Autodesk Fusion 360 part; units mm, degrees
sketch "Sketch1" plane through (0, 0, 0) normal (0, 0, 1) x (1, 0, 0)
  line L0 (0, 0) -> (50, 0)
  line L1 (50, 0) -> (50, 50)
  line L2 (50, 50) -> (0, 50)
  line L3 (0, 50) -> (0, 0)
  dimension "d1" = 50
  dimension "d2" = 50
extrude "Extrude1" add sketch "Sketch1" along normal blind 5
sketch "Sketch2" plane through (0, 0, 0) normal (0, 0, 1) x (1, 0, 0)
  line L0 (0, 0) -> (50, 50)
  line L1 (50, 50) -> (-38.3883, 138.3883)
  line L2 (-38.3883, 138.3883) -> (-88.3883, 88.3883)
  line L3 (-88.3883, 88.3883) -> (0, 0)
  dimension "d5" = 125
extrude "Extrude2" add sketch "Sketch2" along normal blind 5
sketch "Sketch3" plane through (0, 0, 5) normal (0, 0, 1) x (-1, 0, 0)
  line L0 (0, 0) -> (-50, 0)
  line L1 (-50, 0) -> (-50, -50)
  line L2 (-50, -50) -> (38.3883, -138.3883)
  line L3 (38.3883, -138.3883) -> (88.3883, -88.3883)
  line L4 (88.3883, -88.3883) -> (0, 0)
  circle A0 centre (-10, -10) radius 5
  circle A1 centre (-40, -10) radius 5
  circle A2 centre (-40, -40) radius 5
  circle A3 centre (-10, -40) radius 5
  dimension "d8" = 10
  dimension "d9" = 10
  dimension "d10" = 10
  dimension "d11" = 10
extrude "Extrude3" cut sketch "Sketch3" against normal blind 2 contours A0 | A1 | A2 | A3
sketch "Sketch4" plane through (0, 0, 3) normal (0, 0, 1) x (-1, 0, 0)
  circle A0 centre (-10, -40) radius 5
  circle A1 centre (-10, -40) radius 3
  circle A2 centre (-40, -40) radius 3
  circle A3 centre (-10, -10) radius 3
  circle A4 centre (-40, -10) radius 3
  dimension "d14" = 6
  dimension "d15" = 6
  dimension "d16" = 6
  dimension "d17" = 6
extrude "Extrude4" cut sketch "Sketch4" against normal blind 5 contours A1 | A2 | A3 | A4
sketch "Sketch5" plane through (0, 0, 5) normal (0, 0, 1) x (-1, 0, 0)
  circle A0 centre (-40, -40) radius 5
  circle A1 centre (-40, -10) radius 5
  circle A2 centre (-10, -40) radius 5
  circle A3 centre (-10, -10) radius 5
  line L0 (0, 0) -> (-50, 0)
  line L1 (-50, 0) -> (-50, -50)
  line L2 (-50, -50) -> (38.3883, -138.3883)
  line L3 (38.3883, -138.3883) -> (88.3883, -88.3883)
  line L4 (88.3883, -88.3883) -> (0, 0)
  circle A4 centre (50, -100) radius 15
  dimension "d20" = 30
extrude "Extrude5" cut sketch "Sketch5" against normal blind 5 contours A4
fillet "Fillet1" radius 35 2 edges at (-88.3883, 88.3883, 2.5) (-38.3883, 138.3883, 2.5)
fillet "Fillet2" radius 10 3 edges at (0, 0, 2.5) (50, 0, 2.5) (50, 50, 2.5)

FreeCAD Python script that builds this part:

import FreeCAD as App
import Part
import Sketcher

V = App.Vector
Q = App.Units.Quantity


def edges_at(feature, points):
    """Names of the edges that pass closest to the given points."""
    edges = feature.Shape.Edges
    near = lambda p: min(range(len(edges)), key=lambda i: edges[i].distToShape(Part.Vertex(*p))[0])
    return sorted({f"Edge{near(p) + 1}" for p in points})


def add_polygon(sketch, points):
    """Adds a closed chain of lines whose ends are joined by coincident constraints."""
    first, n = sketch.GeometryCount, len(points)
    for a, b in zip(points, points[1:] + points[:1]):
        sketch.addGeometry(Part.LineSegment(App.Vector(*a, 0), App.Vector(*b, 0)), False)
    for i in range(n):
        sketch.addConstraint(Sketcher.Constraint("Coincident", first + i, 2, first + (i + 1) % n, 1))

doc = App.newDocument("Part")
body = doc.addObject("PartDesign::Body", "Body")

# Sketch on XY plane
sketch1 = body.newObject("Sketcher::SketchObject", "Sketch")
sketch1.AttachmentSupport = (doc.getObject("XY_Plane"), [""])
sketch1.MapMode = "FlatFace"
add_polygon(sketch1, [(0, 50), (0, 0), (50, 0), (50, 50)])  # lines 0-3
sketch1.addConstraint([
    Sketcher.Constraint("Vertical", 0),
    Sketcher.Constraint("Horizontal", 1),
    Sketcher.Constraint("Vertical", 2),
    Sketcher.Constraint("Horizontal", 3),
    Sketcher.Constraint("Coincident", 0, 2, -1, 1),
    Sketcher.Constraint("Equal", 3, 0),
    Sketcher.Constraint("DistanceX", 1, 1, 1, 2, Q("50 mm")),
])
pad1 = body.newObject("PartDesign::Pad", "Pad")
pad1.Profile = sketch1
pad1.Length = 5

# Sketch on XY plane
sketch2 = body.newObject("Sketcher::SketchObject", "Sketch001")
sketch2.AttachmentSupport = (doc.getObject("XY_Plane"), [""])
sketch2.MapMode = "FlatFace"
add_polygon(sketch2, [(-88, 88), (0, 0), (50, 50), (-38, 138)])  # lines 0-3
sketch2.addConstraint([
    Sketcher.Constraint("Coincident", 0, 2, -1, 1),
    Sketcher.Constraint("Perpendicular", 0, 1),
    Sketcher.Constraint("Perpendicular", 1, 2),
    Sketcher.Constraint("Perpendicular", 2, 3),
    Sketcher.Constraint("Distance", 0, Q("125 mm")),
    Sketcher.Constraint("Angle", 0, Q("-45 deg")),
    Sketcher.Constraint("DistanceX", -1, 1, 1, 2, Q("50 mm")),
])
pad2 = body.newObject("PartDesign::Pad", "Pad001")
pad2.Profile = sketch2
pad2.Length = 5

# Sketch on XY plane
sketch3 = body.newObject("Sketcher::SketchObject", "Sketch002")
sketch3.AttachmentSupport = (doc.getObject("XY_Plane"), [""])
sketch3.MapMode = "FlatFace"
sketch3.AttachmentOffset = App.Placement(V(0, 0, 5), App.Rotation())
sketch3.addGeometry([
    Part.Circle(V(10, 10, 0), V(0, 0, 1), 5),
    Part.Circle(V(40, 10, 0), V(0, 0, 1), 5),
    Part.Circle(V(40, 40, 0), V(0, 0, 1), 5),
    Part.Circle(V(10, 40, 0), V(0, 0, 1), 5),
], False)
sketch3.addConstraint([
    Sketcher.Constraint("Equal", 0, 1),
    Sketcher.Constraint("Equal", 1, 2),
    Sketcher.Constraint("Equal", 2, 3),
    Sketcher.Constraint("Horizontal", 0, 3, 1, 3),
    Sketcher.Constraint("Horizontal", 2, 3, 3, 3),
    Sketcher.Constraint("Vertical", 1, 3, 2, 3),
    Sketcher.Constraint("Vertical", 0, 3, 3, 3),
    Sketcher.Constraint("Diameter", 0, Q("10 mm")),
    Sketcher.Constraint("DistanceX", -1, 1, 0, 3, Q("10 mm")),
    Sketcher.Constraint("DistanceY", -1, 1, 0, 3, Q("10 mm")),
    Sketcher.Constraint("DistanceX", -1, 1, 1, 3, Q("40 mm")),
    Sketcher.Constraint("DistanceY", -1, 1, 2, 3, Q("40 mm")),
])
pocket1 = body.newObject("PartDesign::Pocket", "Pocket")
pocket1.Profile = sketch3
pocket1.Length = 2

# Sketch on XY plane
sketch4 = body.newObject("Sketcher::SketchObject", "Sketch003")
sketch4.AttachmentSupport = (doc.getObject("XY_Plane"), [""])
sketch4.MapMode = "FlatFace"
sketch4.AttachmentOffset = App.Placement(V(0, 0, 3), App.Rotation())
sketch4.addGeometry([
    Part.Circle(V(10, 40, 0), V(0, 0, 1), 3),
    Part.Circle(V(40, 40, 0), V(0, 0, 1), 3),
    Part.Circle(V(10, 10, 0), V(0, 0, 1), 3),
    Part.Circle(V(40, 10, 0), V(0, 0, 1), 3),
], False)
sketch4.addConstraint([
    Sketcher.Constraint("Equal", 0, 1),
    Sketcher.Constraint("Equal", 1, 2),
    Sketcher.Constraint("Equal", 2, 3),
    Sketcher.Constraint("Horizontal", 0, 3, 1, 3),
    Sketcher.Constraint("Horizontal", 2, 3, 3, 3),
    Sketcher.Constraint("Vertical", 0, 3, 2, 3),
    Sketcher.Constraint("Vertical", 1, 3, 3, 3),
    Sketcher.Constraint("Diameter", 0, Q("6 mm")),
    Sketcher.Constraint("DistanceX", -1, 1, 0, 3, Q("10 mm")),
    Sketcher.Constraint("DistanceY", -1, 1, 0, 3, Q("40 mm")),
    Sketcher.Constraint("DistanceX", -1, 1, 1, 3, Q("40 mm")),
    Sketcher.Constraint("DistanceY", -1, 1, 2, 3, Q("10 mm")),
])
pocket2 = body.newObject("PartDesign::Pocket", "Pocket001")
pocket2.Profile = sketch4
pocket2.Length = 5

# Sketch on XY plane
sketch5 = body.newObject("Sketcher::SketchObject", "Sketch004")
sketch5.AttachmentSupport = (doc.getObject("XY_Plane"), [""])
sketch5.MapMode = "FlatFace"
sketch5.AttachmentOffset = App.Placement(V(0, 0, 5), App.Rotation())
sketch5.addGeometry(Part.Circle(V(-50, 100, 0), V(0, 0, 1), 15), False)
sketch5.addConstraint([
    Sketcher.Constraint("Diameter", 0, Q("30 mm")),
    Sketcher.Constraint("DistanceX", 0, 3, -1, 1, Q("50 mm")),
    Sketcher.Constraint("DistanceY", -1, 1, 0, 3, Q("100 mm")),
])
pocket3 = body.newObject("PartDesign::Pocket", "Pocket002")
pocket3.Profile = sketch5
pocket3.Length = 5
doc.recompute()

fillet = body.newObject("PartDesign::Fillet", "Fillet")
fillet.Base = (pocket3, edges_at(pocket3, [(-88.388, 88.388, 2.5), (-38.388, 138.388, 2.5)]))
fillet.Radius = 35
doc.recompute()

fillet2 = body.newObject("PartDesign::Fillet", "Fillet001")
fillet2.Base = (fillet, edges_at(fillet, [(0, 0, 2.5), (50, 0, 2.5), (50, 50, 2.5)]))
fillet2.Radius = 10

doc.recompute()
